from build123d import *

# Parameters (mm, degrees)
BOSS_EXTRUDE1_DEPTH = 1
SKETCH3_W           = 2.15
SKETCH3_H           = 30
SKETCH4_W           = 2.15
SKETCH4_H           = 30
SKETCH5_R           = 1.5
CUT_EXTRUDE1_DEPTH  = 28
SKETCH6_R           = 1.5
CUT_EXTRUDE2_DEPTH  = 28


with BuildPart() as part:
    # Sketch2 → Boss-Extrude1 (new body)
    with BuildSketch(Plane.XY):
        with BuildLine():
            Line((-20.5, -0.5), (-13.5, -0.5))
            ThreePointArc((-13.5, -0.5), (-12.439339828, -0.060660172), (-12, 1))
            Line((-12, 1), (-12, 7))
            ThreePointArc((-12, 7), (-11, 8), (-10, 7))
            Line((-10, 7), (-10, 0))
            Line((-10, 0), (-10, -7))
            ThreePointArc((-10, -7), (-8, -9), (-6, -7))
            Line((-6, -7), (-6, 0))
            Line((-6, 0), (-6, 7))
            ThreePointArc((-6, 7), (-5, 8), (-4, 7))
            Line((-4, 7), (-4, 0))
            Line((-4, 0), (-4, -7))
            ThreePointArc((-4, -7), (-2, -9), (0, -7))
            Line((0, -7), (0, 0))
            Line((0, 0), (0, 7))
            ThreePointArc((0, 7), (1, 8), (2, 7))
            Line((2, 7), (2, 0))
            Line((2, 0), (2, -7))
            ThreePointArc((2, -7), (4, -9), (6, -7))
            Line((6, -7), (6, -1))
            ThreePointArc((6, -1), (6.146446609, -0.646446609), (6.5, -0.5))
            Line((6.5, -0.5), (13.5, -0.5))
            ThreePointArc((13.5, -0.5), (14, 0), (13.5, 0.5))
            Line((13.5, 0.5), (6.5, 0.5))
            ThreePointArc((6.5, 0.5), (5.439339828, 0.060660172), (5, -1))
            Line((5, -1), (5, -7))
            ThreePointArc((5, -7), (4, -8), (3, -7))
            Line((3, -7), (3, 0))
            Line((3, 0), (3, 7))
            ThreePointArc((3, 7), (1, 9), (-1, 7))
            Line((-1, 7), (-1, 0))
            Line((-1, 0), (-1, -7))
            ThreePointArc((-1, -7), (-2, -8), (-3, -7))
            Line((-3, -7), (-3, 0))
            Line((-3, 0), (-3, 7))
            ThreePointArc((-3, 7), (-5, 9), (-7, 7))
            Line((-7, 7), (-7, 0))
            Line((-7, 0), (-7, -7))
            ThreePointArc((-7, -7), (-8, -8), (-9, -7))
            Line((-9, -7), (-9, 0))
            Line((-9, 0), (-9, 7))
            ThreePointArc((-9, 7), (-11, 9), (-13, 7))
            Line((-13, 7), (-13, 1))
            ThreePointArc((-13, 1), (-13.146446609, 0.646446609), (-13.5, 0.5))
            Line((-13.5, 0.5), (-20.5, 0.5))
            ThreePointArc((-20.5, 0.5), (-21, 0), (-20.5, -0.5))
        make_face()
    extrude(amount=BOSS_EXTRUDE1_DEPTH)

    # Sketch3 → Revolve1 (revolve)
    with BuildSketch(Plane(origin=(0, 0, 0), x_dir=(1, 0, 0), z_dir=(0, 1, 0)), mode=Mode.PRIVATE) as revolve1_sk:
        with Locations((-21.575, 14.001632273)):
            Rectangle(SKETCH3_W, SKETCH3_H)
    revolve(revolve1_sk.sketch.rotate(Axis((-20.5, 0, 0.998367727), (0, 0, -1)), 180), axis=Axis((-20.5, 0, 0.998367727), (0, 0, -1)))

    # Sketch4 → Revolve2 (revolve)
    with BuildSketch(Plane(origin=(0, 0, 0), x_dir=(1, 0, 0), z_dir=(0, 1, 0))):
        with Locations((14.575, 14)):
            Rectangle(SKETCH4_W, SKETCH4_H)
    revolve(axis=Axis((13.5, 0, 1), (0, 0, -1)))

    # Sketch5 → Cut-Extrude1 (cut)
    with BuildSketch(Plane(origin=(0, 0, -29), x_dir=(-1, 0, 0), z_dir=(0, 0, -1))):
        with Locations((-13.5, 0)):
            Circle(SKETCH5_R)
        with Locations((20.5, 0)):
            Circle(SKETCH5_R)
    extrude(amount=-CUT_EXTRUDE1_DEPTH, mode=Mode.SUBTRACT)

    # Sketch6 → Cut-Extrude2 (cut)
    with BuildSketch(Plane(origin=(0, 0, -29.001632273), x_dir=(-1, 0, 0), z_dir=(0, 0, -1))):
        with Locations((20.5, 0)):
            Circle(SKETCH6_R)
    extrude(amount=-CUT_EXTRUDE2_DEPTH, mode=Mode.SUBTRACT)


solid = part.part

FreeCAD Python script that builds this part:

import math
import FreeCAD as App
import Part
import Sketcher
from FreeCAD import Vector


def add_polygon(sketch, points):
    """Adds a closed chain of lines whose ends are joined by coincident constraints."""
    first, n = sketch.GeometryCount, len(points)
    for a, b in zip(points, points[1:] + points[:1]):
        sketch.addGeometry(Part.LineSegment(App.Vector(*a, 0), App.Vector(*b, 0)), False)
    for i in range(n):
        sketch.addConstraint(Sketcher.Constraint("Coincident", first + i, 2, first + (i + 1) % n, 1))

doc = App.newDocument("Part")
body = doc.addObject("PartDesign::Body", "Body")

sketch1 = body.newObject("Sketcher::SketchObject", "Sketch")
sketch1.AttachmentSupport = (doc.getObject("XY_Plane"), [""])
sketch1.MapMode = "FlatFace"
sketch1.addGeometry([
    Part.LineSegment(Vector(-20.5, -0.5, 0), Vector(-13.5, -0.5, 0)),
    Part.ArcOfCircle(Part.Circle(Vector(-13.5, 1, 0), Vector(0, 0, 1), 1.5), math.radians(-90), math.radians(0)),
    Part.LineSegment(Vector(-12, 1, 0), Vector(-12, 7, 0)),
    Part.ArcOfCircle(Part.Circle(Vector(-11, 7, 0), Vector(0, 0, 1), 1), math.radians(0), math.radians(180)),
    Part.LineSegment(Vector(-10, 7, 0), Vector(-10, -7, 0)),
    Part.ArcOfCircle(Part.Circle(Vector(-8, -7, 0), Vector(0, 0, 1), 2), math.radians(180), math.radians(360)),
    Part.LineSegment(Vector(-6, -7, 0), Vector(-6, 7, 0)),
    Part.ArcOfCircle(Part.Circle(Vector(-5, 7, 0), Vector(0, 0, 1), 1), math.radians(0), math.radians(180)),
    Part.LineSegment(Vector(-4, 7, 0), Vector(-4, -7, 0)),
    Part.ArcOfCircle(Part.Circle(Vector(-2, -7, 0), Vector(0, 0, 1), 2), math.radians(180), math.radians(360)),
    Part.LineSegment(Vector(0, -7, 0), Vector(0, 7, 0)),
    Part.ArcOfCircle(Part.Circle(Vector(1, 7, 0), Vector(0, 0, 1), 1), math.radians(0), math.radians(180)),
    Part.LineSegment(Vector(2, 7, 0), Vector(2, -7, 0)),
    Part.ArcOfCircle(Part.Circle(Vector(4, -7, 0), Vector(0, 0, 1), 2), math.radians(180), math.radians(360)),
    Part.LineSegment(Vector(6, -7, 0), Vector(6, -1, 0)),
    Part.ArcOfCircle(Part.Circle(Vector(6.5, -1, 0), Vector(0, 0, 1), 0.5), math.radians(90), math.radians(180)),
    Part.LineSegment(Vector(6.5, -0.5, 0), Vector(13.5, -0.5, 0)),
    Part.ArcOfCircle(Part.Circle(Vector(13.5, 0, 0), Vector(0, 0, 1), 0.5), math.radians(-90), math.radians(90)),
    Part.LineSegment(Vector(13.5, 0.5, 0), Vector(6.5, 0.5, 0)),
    Part.ArcOfCircle(Part.Circle(Vector(6.5, -1, 0), Vector(0, 0, 1), 1.5), math.radians(90), math.radians(180)),
    Part.LineSegment(Vector(5, -1, 0), Vector(5, -7, 0)),
    Part.ArcOfCircle(Part.Circle(Vector(4, -7, 0), Vector(0, 0, 1), 1), math.radians(180), math.radians(360)),
    Part.LineSegment(Vector(3, -7, 0), Vector(3, 7, 0)),
    Part.ArcOfCircle(Part.Circle(Vector(1, 7, 0), Vector(0, 0, 1), 2), math.radians(0), math.radians(180)),
    Part.LineSegment(Vector(-1, 7, 0), Vector(-1, -7, 0)),
    Part.ArcOfCircle(Part.Circle(Vector(-2, -7, 0), Vector(0, 0, 1), 1), math.radians(180), math.radians(360)),
    Part.LineSegment(Vector(-3, -7, 0), Vector(-3, 7, 0)),
    Part.ArcOfCircle(Part.Circle(Vector(-5, 7, 0), Vector(0, 0, 1), 2), math.radians(0), math.radians(180)),
    Part.LineSegment(Vector(-7, 7, 0), Vector(-7, -7, 0)),
    Part.ArcOfCircle(Part.Circle(Vector(-8, -7, 0), Vector(0, 0, 1), 1), math.radians(180), math.radians(360)),
    Part.LineSegment(Vector(-9, -7, 0), Vector(-9, 7, 0)),
    Part.ArcOfCircle(Part.Circle(Vector(-11, 7, 0), Vector(0, 0, 1), 2), math.radians(0), math.radians(180)),
    Part.LineSegment(Vector(-13, 7, 0), Vector(-13, 1, 0)),
    Part.ArcOfCircle(Part.Circle(Vector(-13.5, 1, 0), Vector(0, 0, 1), 0.5), math.radians(-90), math.radians(0)),
    Part.LineSegment(Vector(-13.5, 0.5, 0), Vector(-20.5, 0.5, 0)),
    Part.ArcOfCircle(Part.Circle(Vector(-20.5, 0, 0), Vector(0, 0, 1), 0.5), math.radians(90), math.radians(270)),
], False)
sketch1.addConstraint([
    Sketcher.Constraint("Tangent", 0, 2, 1, 1),
    Sketcher.Constraint("Tangent", 1, 2, 2, 1),
    Sketcher.Constraint("Tangent", 2, 2, 3, 2),
    Sketcher.Constraint("Tangent", 3, 1, 4, 1),
    Sketcher.Constraint("Tangent", 4, 2, 5, 1),
    Sketcher.Constraint("Tangent", 5, 2, 6, 1),
    Sketcher.Constraint("Tangent", 6, 2, 7, 2),
    Sketcher.Constraint("Tangent", 7, 1, 8, 1),
    Sketcher.Constraint("Tangent", 8, 2, 9, 1),
    Sketcher.Constraint("Tangent", 9, 2, 10, 1),
    Sketcher.Constraint("Tangent", 10, 2, 11, 2),
    Sketcher.Constraint("Tangent", 11, 1, 12, 1),
    Sketcher.Constraint("Tangent", 12, 2, 13, 1),
    Sketcher.Constraint("Tangent", 13, 2, 14, 1),
    Sketcher.Constraint("Tangent", 14, 2, 15, 2),
    Sketcher.Constraint("Tangent", 15, 1, 16, 1),
    Sketcher.Constraint("Tangent", 16, 2, 17, 1),
    Sketcher.Constraint("Tangent", 17, 2, 18, 1),
    Sketcher.Constraint("Tangent", 18, 2, 19, 1),
    Sketcher.Constraint("Tangent", 19, 2, 20, 1),
    Sketcher.Constraint("Tangent", 20, 2, 21, 2),
    Sketcher.Constraint("Tangent", 21, 1, 22, 1),
    Sketcher.Constraint("Tangent", 22, 2, 23, 1),
    Sketcher.Constraint("Tangent", 23, 2, 24, 1),
    Sketcher.Constraint("Tangent", 24, 2, 25, 2),
    Sketcher.Constraint("Tangent", 25, 1, 26, 1),
    Sketcher.Constraint("Tangent", 26, 2, 27, 1),
    Sketcher.Constraint("Tangent", 27, 2, 28, 1),
    Sketcher.Constraint("Tangent", 28, 2, 29, 2),
    Sketcher.Constraint("Tangent", 29, 1, 30, 1),
    Sketcher.Constraint("Tangent", 30, 2, 31, 1),
    Sketcher.Constraint("Tangent", 31, 2, 32, 1),
    Sketcher.Constraint("Tangent", 32, 2, 33, 2),
    Sketcher.Constraint("Tangent", 33, 1, 34, 1),
    Sketcher.Constraint("Tangent", 34, 2, 35, 1),
    Sketcher.Constraint("Tangent", 35, 2, 0, 1),
    Sketcher.Constraint("Horizontal", 0),
    Sketcher.Constraint("Vertical", 2),
    Sketcher.Constraint("Vertical", 4),
    Sketcher.Constraint("Vertical", 6),
    Sketcher.Constraint("Vertical", 8),
    Sketcher.Constraint("Vertical", 10),
    Sketcher.Constraint("Vertical", 12),
    Sketcher.Constraint("Vertical", 14),
    Sketcher.Constraint("Horizontal", 16),
    Sketcher.Constraint("Horizontal", 18),
    Sketcher.Constraint("Vertical", 20),
    Sketcher.Constraint("Vertical", 22),
    Sketcher.Constraint("Vertical", 24),
    Sketcher.Constraint("Vertical", 26),
    Sketcher.Constraint("Vertical", 28),
    Sketcher.Constraint("Vertical", 30),
    Sketcher.Constraint("Vertical", 32),
    Sketcher.Constraint("Horizontal", 34),
    Sketcher.Constraint("Coincident", 19, 3, 15, 3),
    Sketcher.Constraint("Coincident", 21, 3, 13, 3),
    Sketcher.Constraint("Coincident", 23, 3, 11, 3),
    Sketcher.Constraint("Coincident", 25, 3, 9, 3),
    Sketcher.Constraint("Coincident", 27, 3, 7, 3),
    Sketcher.Constraint("Coincident", 29, 3, 5, 3),
    Sketcher.Constraint("Coincident", 31, 3, 3, 3),
    Sketcher.Constraint("Coincident", 33, 3, 1, 3),
    Sketcher.Constraint("Equal", 3, 7),
    Sketcher.Constraint("Equal", 5, 9),
    Sketcher.Constraint("Equal", 7, 11),
    Sketcher.Constraint("Equal", 9, 13),
    Sketcher.Constraint("Equal", 15, 17),
    Sketcher.Constraint("Equal", 1, 19),
    Sketcher.Constraint("Equal", 11, 21),
    Sketcher.Constraint("Symmetric", 9, 2, 10, 2, -1, 1),
    Sketcher.Constraint("Symmetric", 0, 2, 17, 2, -1, 1),
    Sketcher.Constraint("PointOnObject", 17, 3, -1),
    Sketcher.Constraint("Horizontal", 3, 3, 7, 3),
    Sketcher.Constraint("Horizontal", 5, 3, 9, 3),
    Sketcher.Constraint("Horizontal", 7, 3, 11, 3),
    Sketcher.Constraint("Horizontal", 9, 3, 13, 3),
    Sketcher.Constraint("Equal", 0, 16),
    Sketcher.Constraint("Radius", 3, 1.0),
    Sketcher.Constraint("Radius", 5, 2.0),
    Sketcher.Constraint("DistanceY", 2, 1, 2, 2, 6.0),
])
pad1 = body.newObject("PartDesign::Pad", "Pad")
pad1.Profile = sketch1
pad1.Length = 1

sketch2 = body.newObject("Sketcher::SketchObject", "Sketch001")
sketch2.AttachmentSupport = (doc.getObject("XZ_Plane"), [""])
sketch2.MapMode = "FlatFace"
add_polygon(sketch2, [(-22.65, -29.001632), (-22.65, 0.998368), (-20.5, 0.998368), (-20.5, -29.001632)])
sketch2.addGeometry(Part.LineSegment(Vector(-20.5, 0.998368, 0), Vector(-20.5, -29.001632, 0)), True)
sketch2.addConstraint([
    Sketcher.Constraint("Vertical", 0),
    Sketcher.Constraint("Horizontal", 1),
    Sketcher.Constraint("Vertical", 2),
    Sketcher.Constraint("Horizontal", 3),
    Sketcher.Constraint("Vertical", 4),
    Sketcher.Constraint("Coincident", 4, 1, 1, 2),
    Sketcher.Constraint("Horizontal", 3, 2, 4, 2),
    Sketcher.Constraint("DistanceY", 0, 1, 0, 2, 30.0),
    Sketcher.Constraint("DistanceX", 1, 1, 1, 2, 2.15),
    Sketcher.Constraint("DistanceX", 1, 2, -1, 1, 20.5),
    Sketcher.Constraint("DistanceY", -1, 1, 0, 2, 0.998368),
])
revolution = body.newObject("PartDesign::Revolution", "Revolution")
revolution.Profile = sketch2
revolution.ReferenceAxis = (sketch2, ["Axis0"])
revolution.Angle = 360

sketch3 = body.newObject("Sketcher::SketchObject", "Sketch002")
sketch3.AttachmentSupport = (doc.getObject("XZ_Plane"), [""])
sketch3.MapMode = "FlatFace"
add_polygon(sketch3, [(13.5, -29), (13.5, 1), (15.65, 1), (15.65, -29)])
sketch3.addGeometry(Part.LineSegment(Vector(13.5, 1, 0), Vector(13.5, -29, 0)), True)
sketch3.addConstraint([
    Sketcher.Constraint("Vertical", 0),
    Sketcher.Constraint("Horizontal", 1),
    Sketcher.Constraint("Vertical", 2),
    Sketcher.Constraint("Horizontal", 3),
    Sketcher.Constraint("Vertical", 4),
    Sketcher.Constraint("Coincident", 4, 1, 0, 2),
    Sketcher.Constraint("Horizontal", 2, 2, 4, 2),
    Sketcher.Constraint("DistanceY", 0, 1, 0, 2, 30.0),
    Sketcher.Constraint("DistanceY", -1, 1, 0, 2, 1.0),
    Sketcher.Constraint("DistanceX", 1, 1, 1, 2, 2.15),
    Sketcher.Constraint("DistanceX", -1, 1, 0, 2, 13.5),
])
revolution2 = body.newObject("PartDesign::Revolution", "Revolution001")
revolution2.Profile = sketch3
revolution2.ReferenceAxis = (sketch3, ["Axis0"])
revolution2.Angle = 360

sketch4 = body.newObject("Sketcher::SketchObject", "Sketch003")
sketch4.AttachmentSupport = (doc.getObject("XY_Plane"), [""])
sketch4.MapMode = "FlatFace"
sketch4.AttachmentOffset = App.Placement(Vector(0, 0, -29), App.Rotation())
sketch4.addGeometry([
    Part.Circle(Vector(13.5, 0, 0), Vector(0, 0, 1), 1.5),
    Part.Circle(Vector(-20.5, 0, 0), Vector(0, 0, 1), 1.5),
], False)
sketch4.addConstraint([
    Sketcher.Constraint("Equal", 0, 1),
    Sketcher.Constraint("PointOnObject", 0, 3, -1),
    Sketcher.Constraint("PointOnObject", 1, 3, -1),
    Sketcher.Constraint("Diameter", 0, 3.0),
    Sketcher.Constraint("DistanceX", 1, 3, 0, 3, 34.0),
    Sketcher.Constraint("DistanceX", -1, 1, 0, 3, 13.5),
])
pocket1 = body.newObject("PartDesign::Pocket", "Pocket")
pocket1.Profile = sketch4
pocket1.Length = 28
pocket1.Reversed = True

sketch5 = body.newObject("Sketcher::SketchObject", "Sketch004")
sketch5.AttachmentSupport = (doc.getObject("XY_Plane"), [""])
sketch5.MapMode = "FlatFace"
sketch5.AttachmentOffset = App.Placement(Vector(0, 0, -29.001632), App.Rotation())
sketch5.addGeometry(Part.Circle(Vector(-20.5, 0, 0), Vector(0, 0, 1), 1.5), False)
sketch5.addConstraint([
    Sketcher.Constraint("PointOnObject", 0, 3, -1),
    Sketcher.Constraint("Diameter", 0, 3.0),
    Sketcher.Constraint("DistanceX", 0, 3, -1, 1, 20.5),
])
pocket2 = body.newObject("PartDesign::Pocket", "Pocket001")
pocket2.Profile = sketch5
pocket2.Length = 28
pocket2.Reversed = True

doc.recompute()
